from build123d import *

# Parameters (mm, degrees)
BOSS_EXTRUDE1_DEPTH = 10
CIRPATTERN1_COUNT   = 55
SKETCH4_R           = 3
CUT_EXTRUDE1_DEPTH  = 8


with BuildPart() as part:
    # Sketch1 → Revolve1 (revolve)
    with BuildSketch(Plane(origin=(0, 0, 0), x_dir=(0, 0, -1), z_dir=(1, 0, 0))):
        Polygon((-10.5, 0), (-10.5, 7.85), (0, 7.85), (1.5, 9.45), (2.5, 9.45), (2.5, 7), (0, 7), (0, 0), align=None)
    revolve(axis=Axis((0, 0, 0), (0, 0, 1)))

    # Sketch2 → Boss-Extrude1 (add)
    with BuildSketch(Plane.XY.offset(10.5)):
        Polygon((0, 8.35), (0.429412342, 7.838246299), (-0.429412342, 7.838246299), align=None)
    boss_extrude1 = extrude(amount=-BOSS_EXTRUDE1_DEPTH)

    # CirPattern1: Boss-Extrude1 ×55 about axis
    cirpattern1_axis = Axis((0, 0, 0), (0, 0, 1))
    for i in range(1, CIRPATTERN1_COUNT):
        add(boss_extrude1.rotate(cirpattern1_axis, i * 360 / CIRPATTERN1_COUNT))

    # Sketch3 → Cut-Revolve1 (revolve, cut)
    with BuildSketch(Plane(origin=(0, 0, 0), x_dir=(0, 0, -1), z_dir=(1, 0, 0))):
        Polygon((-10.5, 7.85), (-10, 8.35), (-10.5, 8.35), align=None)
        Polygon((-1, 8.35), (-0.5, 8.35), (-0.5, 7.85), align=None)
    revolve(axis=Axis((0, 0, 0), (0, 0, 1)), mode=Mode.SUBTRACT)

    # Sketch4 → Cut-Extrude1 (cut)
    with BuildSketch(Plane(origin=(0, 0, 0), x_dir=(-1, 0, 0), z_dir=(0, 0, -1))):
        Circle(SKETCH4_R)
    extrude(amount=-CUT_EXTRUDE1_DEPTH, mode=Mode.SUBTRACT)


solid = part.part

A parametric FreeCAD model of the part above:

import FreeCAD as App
import Part
import Sketcher
Q = App.Units.Quantity

doc = App.newDocument("Part")
params = doc.addObject("Spreadsheet::Sheet", "Params")
for row, (alias, value) in enumerate([
    ("sketch1_width", "7 mm"),
    ("sketch1_height", "1 mm"),
    ("sketch1_height2", "10.5 mm"),
    ("sketch1_height3", "2.5 mm"),
    ("sketch1_width2", "7.85 mm"),
    ("revolution_angle", "360 deg"),
    ("pad1_length", "10 mm"),
    ("sketch3_width", "0.5 mm"),
    ("groove_angle", "360 deg"),
    ("sketch4_diameter", "6 mm"),
    ("pocket1_length", "8 mm"),
], start=1):
    params.set(f"A{row}", alias)
    params.set(f"B{row}", "=" + value)
    params.setAlias(f"B{row}", alias)

body = doc.addObject("PartDesign::Body", "Body")

sketch1 = body.newObject("Sketcher::SketchObject", "Sketch")
sketch1.AttachmentSupport = (doc.getObject("YZ_Plane"), [""])
sketch1.MapMode = "FlatFace"
sketch1.addGeometry(Part.LineSegment(App.Vector(7.8, 10.5, 0), App.Vector(0, 10.5, 0)), False)
sketch1.addGeometry(Part.LineSegment(App.Vector(0, 10.5, 0), App.Vector(0, 0, 0)), False)
sketch1.addGeometry(Part.LineSegment(App.Vector(0, 0, 0), App.Vector(7, 0, 0)), False)
sketch1.addGeometry(Part.LineSegment(App.Vector(7, 0, 0), App.Vector(7, -2.5, 0)), False)
sketch1.addGeometry(Part.LineSegment(App.Vector(7, -2.5, 0), App.Vector(9.4, -2.5, 0)), False)
sketch1.addGeometry(Part.LineSegment(App.Vector(9.4, -2.5, 0), App.Vector(9.4, -1.5, 0)), False)
sketch1.addGeometry(Part.LineSegment(App.Vector(9.4, -1.5, 0), App.Vector(7.8, 0, 0)), False)
sketch1.addGeometry(Part.LineSegment(App.Vector(7.8, 0, 0), App.Vector(7.8, 10.5, 0)), False)
sketch1.addConstraint(Sketcher.Constraint("Coincident", 0, 2, 1, 1))
sketch1.addConstraint(Sketcher.Constraint("Coincident", 1, 2, 2, 1))
sketch1.addConstraint(Sketcher.Constraint("Coincident", 2, 2, 3, 1))
sketch1.addConstraint(Sketcher.Constraint("Coincident", 3, 2, 4, 1))
sketch1.addConstraint(Sketcher.Constraint("Coincident", 4, 2, 5, 1))
sketch1.addConstraint(Sketcher.Constraint("Coincident", 5, 2, 6, 1))
sketch1.addConstraint(Sketcher.Constraint("Coincident", 6, 2, 7, 1))
sketch1.addConstraint(Sketcher.Constraint("Coincident", 7, 2, 0, 1))
sketch1.addConstraint(Sketcher.Constraint("Horizontal", 0))
sketch1.addConstraint(Sketcher.Constraint("Vertical", 1))
sketch1.addConstraint(Sketcher.Constraint("Horizontal", 2))
sketch1.addConstraint(Sketcher.Constraint("Vertical", 3))
sketch1.addConstraint(Sketcher.Constraint("Horizontal", 4))
sketch1.addConstraint(Sketcher.Constraint("Vertical", 5))
sketch1.addConstraint(Sketcher.Constraint("Vertical", 7))
sketch1.addConstraint(Sketcher.Constraint("Coincident", 1, 2, -1, 1))
sketch1.addConstraint(Sketcher.Constraint("PointOnObject", 6, 2, -1))
sketch1.addConstraint(Sketcher.Constraint("DistanceX", 2, 1, 2, 2, 7.0))
sketch1.addConstraint(Sketcher.Constraint("DistanceY", 5, 1, 5, 2, 1.0))
sketch1.addConstraint(Sketcher.Constraint("DistanceY", 1, 2, 1, 1, 10.5))
sketch1.addConstraint(Sketcher.Constraint("DistanceY", 3, 2, 3, 1, 2.5))
sketch1.addConstraint(Sketcher.Constraint("DistanceX", 0, 2, 0, 1, 7.85))
sketch1.addConstraint(Sketcher.Constraint("DistanceX", 4, 1, 4, 2, 2.45))
sketch1.setExpression("Constraints[17]", "Params.sketch1_width")
sketch1.setExpression("Constraints[18]", "Params.sketch1_height")
sketch1.setExpression("Constraints[19]", "Params.sketch1_height2")
sketch1.setExpression("Constraints[20]", "Params.sketch1_height3")
sketch1.setExpression("Constraints[21]", "Params.sketch1_width2")
revolution = body.newObject("PartDesign::Revolution", "Revolution")
revolution.Profile = sketch1
revolution.ReferenceAxis = (sketch1, ["V_Axis"])
revolution.setExpression("Angle", "Params.revolution_angle")

sketch2 = body.newObject("Sketcher::SketchObject", "Sketch001")
sketch2.AttachmentSupport = (doc.getObject("XY_Plane"), [""])
sketch2.MapMode = "FlatFace"
sketch2.AttachmentOffset = App.Placement(App.Vector(0, 0, 10.5), App.Rotation())
sketch2.addGeometry(Part.LineSegment(App.Vector(0.4, 7.8, 0), App.Vector(0, 8.3, 0)), False)
sketch2.addGeometry(Part.LineSegment(App.Vector(0, 8.3, 0), App.Vector(-0.4, 7.8, 0)), False)
sketch2.addGeometry(Part.LineSegment(App.Vector(-0.4, 7.8, 0), App.Vector(0.4, 7.8, 0)), False)
sketch2.addConstraint(Sketcher.Constraint("Coincident", 0, 2, 1, 1))
sketch2.addConstraint(Sketcher.Constraint("Coincident", 1, 2, 2, 1))
sketch2.addConstraint(Sketcher.Constraint("Coincident", 2, 2, 0, 1))
sketch2.addConstraint(Sketcher.Constraint("Horizontal", 2))
sketch2.addConstraint(Sketcher.Constraint("PointOnObject", 0, 2, -2))
sketch2.addConstraint(Sketcher.Constraint("Equal", 0, 1))
sketch2.addConstraint(Sketcher.Constraint("Angle", 0, Q("130 deg")))
sketch2.addConstraint(Sketcher.Constraint("DistanceY", -1, 1, 0, 2, 8.35))
sketch2.addConstraint(Sketcher.Constraint("DistanceX", 2, 1, 2, 2, 0.858825))
pad1 = body.newObject("PartDesign::Pad", "Pad")
pad1.Profile = sketch2
pad1.setExpression("Length", "Params.pad1_length")
pad1.Reversed = True
doc.recompute()

polarpattern = body.newObject("PartDesign::PolarPattern", "PolarPattern")
polarpattern.Originals = [pad1]
polarpattern.Axis = (doc.getObject("Z_Axis"), [""])
polarpattern.Angle = 360
polarpattern.Occurrences = 55
body.Tip = polarpattern

sketch3 = body.newObject("Sketcher::SketchObject", "Sketch002")
sketch3.AttachmentSupport = (doc.getObject("YZ_Plane"), [""])
sketch3.MapMode = "FlatFace"
sketch3.addGeometry(Part.LineSegment(App.Vector(7.8, 10.5, 0), App.Vector(8.3, 10, 0)), False)
sketch3.addGeometry(Part.LineSegment(App.Vector(8.3, 10, 0), App.Vector(8.3, 10.5, 0)), False)
sketch3.addGeometry(Part.LineSegment(App.Vector(8.3, 10.5, 0), App.Vector(7.8, 10.5, 0)), False)
sketch3.addGeometry(Part.LineSegment(App.Vector(8.3, 0.5, 0), App.Vector(8.3, 1, 0)), False)
sketch3.addGeometry(Part.LineSegment(App.Vector(8.3, 1, 0), App.Vector(7.8, 0.5, 0)), False)
sketch3.addGeometry(Part.LineSegment(App.Vector(7.8, 0.5, 0), App.Vector(8.3, 0.5, 0)), False)
sketch3.addConstraint(Sketcher.Constraint("Coincident", 0, 2, 1, 1))
sketch3.addConstraint(Sketcher.Constraint("Coincident", 1, 2, 2, 1))
sketch3.addConstraint(Sketcher.Constraint("Coincident", 2, 2, 0, 1))
sketch3.addConstraint(Sketcher.Constraint("Coincident", 3, 2, 4, 1))
sketch3.addConstraint(Sketcher.Constraint("Coincident", 4, 2, 5, 1))
sketch3.addConstraint(Sketcher.Constraint("Coincident", 5, 2, 3, 1))
sketch3.addConstraint(Sketcher.Constraint("Vertical", 1))
sketch3.addConstraint(Sketcher.Constraint("Horizontal", 2))
sketch3.addConstraint(Sketcher.Constraint("Vertical", 3))
sketch3.addConstraint(Sketcher.Constraint("Horizontal", 5))
sketch3.addConstraint(Sketcher.Constraint("Perpendicular", 0, 4))
sketch3.addConstraint(Sketcher.Constraint("Vertical", 1, 2, 3, 2))
sketch3.addConstraint(Sketcher.Constraint("Vertical", 2, 2, 4, 2))
sketch3.addConstraint(Sketcher.Constraint("Equal", 5, 1))
sketch3.addConstraint(Sketcher.Constraint("DistanceX", 2, 2, 2, 1, 0.5))
sketch3.addConstraint(Sketcher.Constraint("DistanceY", -1, 1, 0, 2, 10.0))
sketch3.addConstraint(Sketcher.Constraint("DistanceY", -1, 1, 3, 2, 1.0))
sketch3.addConstraint(Sketcher.Constraint("DistanceX", -1, 1, 0, 2, 8.35))
sketch3.setExpression("Constraints[14]", "Params.sketch3_width")
groove = body.newObject("PartDesign::Groove", "Groove")
groove.Profile = sketch3
groove.ReferenceAxis = (sketch3, ["V_Axis"])
groove.setExpression("Angle", "Params.groove_angle")

sketch4 = body.newObject("Sketcher::SketchObject", "Sketch003")
sketch4.AttachmentSupport = (doc.getObject("XY_Plane"), [""])
sketch4.MapMode = "FlatFace"
sketch4.addGeometry(Part.Circle(App.Vector(0, 0, 0), App.Vector(0, 0, 1), 3), False)
sketch4.addConstraint(Sketcher.Constraint("Coincident", 0, 3, -1, 1))
sketch4.addConstraint(Sketcher.Constraint("Diameter", 0, 6.0))
sketch4.setExpression("Constraints[1]", "Params.sketch4_diameter")
pocket1 = body.newObject("PartDesign::Pocket", "Pocket")
pocket1.Profile = sketch4
pocket1.setExpression("Length", "Params.pocket1_length")
pocket1.Reversed = True

doc.recompute()
